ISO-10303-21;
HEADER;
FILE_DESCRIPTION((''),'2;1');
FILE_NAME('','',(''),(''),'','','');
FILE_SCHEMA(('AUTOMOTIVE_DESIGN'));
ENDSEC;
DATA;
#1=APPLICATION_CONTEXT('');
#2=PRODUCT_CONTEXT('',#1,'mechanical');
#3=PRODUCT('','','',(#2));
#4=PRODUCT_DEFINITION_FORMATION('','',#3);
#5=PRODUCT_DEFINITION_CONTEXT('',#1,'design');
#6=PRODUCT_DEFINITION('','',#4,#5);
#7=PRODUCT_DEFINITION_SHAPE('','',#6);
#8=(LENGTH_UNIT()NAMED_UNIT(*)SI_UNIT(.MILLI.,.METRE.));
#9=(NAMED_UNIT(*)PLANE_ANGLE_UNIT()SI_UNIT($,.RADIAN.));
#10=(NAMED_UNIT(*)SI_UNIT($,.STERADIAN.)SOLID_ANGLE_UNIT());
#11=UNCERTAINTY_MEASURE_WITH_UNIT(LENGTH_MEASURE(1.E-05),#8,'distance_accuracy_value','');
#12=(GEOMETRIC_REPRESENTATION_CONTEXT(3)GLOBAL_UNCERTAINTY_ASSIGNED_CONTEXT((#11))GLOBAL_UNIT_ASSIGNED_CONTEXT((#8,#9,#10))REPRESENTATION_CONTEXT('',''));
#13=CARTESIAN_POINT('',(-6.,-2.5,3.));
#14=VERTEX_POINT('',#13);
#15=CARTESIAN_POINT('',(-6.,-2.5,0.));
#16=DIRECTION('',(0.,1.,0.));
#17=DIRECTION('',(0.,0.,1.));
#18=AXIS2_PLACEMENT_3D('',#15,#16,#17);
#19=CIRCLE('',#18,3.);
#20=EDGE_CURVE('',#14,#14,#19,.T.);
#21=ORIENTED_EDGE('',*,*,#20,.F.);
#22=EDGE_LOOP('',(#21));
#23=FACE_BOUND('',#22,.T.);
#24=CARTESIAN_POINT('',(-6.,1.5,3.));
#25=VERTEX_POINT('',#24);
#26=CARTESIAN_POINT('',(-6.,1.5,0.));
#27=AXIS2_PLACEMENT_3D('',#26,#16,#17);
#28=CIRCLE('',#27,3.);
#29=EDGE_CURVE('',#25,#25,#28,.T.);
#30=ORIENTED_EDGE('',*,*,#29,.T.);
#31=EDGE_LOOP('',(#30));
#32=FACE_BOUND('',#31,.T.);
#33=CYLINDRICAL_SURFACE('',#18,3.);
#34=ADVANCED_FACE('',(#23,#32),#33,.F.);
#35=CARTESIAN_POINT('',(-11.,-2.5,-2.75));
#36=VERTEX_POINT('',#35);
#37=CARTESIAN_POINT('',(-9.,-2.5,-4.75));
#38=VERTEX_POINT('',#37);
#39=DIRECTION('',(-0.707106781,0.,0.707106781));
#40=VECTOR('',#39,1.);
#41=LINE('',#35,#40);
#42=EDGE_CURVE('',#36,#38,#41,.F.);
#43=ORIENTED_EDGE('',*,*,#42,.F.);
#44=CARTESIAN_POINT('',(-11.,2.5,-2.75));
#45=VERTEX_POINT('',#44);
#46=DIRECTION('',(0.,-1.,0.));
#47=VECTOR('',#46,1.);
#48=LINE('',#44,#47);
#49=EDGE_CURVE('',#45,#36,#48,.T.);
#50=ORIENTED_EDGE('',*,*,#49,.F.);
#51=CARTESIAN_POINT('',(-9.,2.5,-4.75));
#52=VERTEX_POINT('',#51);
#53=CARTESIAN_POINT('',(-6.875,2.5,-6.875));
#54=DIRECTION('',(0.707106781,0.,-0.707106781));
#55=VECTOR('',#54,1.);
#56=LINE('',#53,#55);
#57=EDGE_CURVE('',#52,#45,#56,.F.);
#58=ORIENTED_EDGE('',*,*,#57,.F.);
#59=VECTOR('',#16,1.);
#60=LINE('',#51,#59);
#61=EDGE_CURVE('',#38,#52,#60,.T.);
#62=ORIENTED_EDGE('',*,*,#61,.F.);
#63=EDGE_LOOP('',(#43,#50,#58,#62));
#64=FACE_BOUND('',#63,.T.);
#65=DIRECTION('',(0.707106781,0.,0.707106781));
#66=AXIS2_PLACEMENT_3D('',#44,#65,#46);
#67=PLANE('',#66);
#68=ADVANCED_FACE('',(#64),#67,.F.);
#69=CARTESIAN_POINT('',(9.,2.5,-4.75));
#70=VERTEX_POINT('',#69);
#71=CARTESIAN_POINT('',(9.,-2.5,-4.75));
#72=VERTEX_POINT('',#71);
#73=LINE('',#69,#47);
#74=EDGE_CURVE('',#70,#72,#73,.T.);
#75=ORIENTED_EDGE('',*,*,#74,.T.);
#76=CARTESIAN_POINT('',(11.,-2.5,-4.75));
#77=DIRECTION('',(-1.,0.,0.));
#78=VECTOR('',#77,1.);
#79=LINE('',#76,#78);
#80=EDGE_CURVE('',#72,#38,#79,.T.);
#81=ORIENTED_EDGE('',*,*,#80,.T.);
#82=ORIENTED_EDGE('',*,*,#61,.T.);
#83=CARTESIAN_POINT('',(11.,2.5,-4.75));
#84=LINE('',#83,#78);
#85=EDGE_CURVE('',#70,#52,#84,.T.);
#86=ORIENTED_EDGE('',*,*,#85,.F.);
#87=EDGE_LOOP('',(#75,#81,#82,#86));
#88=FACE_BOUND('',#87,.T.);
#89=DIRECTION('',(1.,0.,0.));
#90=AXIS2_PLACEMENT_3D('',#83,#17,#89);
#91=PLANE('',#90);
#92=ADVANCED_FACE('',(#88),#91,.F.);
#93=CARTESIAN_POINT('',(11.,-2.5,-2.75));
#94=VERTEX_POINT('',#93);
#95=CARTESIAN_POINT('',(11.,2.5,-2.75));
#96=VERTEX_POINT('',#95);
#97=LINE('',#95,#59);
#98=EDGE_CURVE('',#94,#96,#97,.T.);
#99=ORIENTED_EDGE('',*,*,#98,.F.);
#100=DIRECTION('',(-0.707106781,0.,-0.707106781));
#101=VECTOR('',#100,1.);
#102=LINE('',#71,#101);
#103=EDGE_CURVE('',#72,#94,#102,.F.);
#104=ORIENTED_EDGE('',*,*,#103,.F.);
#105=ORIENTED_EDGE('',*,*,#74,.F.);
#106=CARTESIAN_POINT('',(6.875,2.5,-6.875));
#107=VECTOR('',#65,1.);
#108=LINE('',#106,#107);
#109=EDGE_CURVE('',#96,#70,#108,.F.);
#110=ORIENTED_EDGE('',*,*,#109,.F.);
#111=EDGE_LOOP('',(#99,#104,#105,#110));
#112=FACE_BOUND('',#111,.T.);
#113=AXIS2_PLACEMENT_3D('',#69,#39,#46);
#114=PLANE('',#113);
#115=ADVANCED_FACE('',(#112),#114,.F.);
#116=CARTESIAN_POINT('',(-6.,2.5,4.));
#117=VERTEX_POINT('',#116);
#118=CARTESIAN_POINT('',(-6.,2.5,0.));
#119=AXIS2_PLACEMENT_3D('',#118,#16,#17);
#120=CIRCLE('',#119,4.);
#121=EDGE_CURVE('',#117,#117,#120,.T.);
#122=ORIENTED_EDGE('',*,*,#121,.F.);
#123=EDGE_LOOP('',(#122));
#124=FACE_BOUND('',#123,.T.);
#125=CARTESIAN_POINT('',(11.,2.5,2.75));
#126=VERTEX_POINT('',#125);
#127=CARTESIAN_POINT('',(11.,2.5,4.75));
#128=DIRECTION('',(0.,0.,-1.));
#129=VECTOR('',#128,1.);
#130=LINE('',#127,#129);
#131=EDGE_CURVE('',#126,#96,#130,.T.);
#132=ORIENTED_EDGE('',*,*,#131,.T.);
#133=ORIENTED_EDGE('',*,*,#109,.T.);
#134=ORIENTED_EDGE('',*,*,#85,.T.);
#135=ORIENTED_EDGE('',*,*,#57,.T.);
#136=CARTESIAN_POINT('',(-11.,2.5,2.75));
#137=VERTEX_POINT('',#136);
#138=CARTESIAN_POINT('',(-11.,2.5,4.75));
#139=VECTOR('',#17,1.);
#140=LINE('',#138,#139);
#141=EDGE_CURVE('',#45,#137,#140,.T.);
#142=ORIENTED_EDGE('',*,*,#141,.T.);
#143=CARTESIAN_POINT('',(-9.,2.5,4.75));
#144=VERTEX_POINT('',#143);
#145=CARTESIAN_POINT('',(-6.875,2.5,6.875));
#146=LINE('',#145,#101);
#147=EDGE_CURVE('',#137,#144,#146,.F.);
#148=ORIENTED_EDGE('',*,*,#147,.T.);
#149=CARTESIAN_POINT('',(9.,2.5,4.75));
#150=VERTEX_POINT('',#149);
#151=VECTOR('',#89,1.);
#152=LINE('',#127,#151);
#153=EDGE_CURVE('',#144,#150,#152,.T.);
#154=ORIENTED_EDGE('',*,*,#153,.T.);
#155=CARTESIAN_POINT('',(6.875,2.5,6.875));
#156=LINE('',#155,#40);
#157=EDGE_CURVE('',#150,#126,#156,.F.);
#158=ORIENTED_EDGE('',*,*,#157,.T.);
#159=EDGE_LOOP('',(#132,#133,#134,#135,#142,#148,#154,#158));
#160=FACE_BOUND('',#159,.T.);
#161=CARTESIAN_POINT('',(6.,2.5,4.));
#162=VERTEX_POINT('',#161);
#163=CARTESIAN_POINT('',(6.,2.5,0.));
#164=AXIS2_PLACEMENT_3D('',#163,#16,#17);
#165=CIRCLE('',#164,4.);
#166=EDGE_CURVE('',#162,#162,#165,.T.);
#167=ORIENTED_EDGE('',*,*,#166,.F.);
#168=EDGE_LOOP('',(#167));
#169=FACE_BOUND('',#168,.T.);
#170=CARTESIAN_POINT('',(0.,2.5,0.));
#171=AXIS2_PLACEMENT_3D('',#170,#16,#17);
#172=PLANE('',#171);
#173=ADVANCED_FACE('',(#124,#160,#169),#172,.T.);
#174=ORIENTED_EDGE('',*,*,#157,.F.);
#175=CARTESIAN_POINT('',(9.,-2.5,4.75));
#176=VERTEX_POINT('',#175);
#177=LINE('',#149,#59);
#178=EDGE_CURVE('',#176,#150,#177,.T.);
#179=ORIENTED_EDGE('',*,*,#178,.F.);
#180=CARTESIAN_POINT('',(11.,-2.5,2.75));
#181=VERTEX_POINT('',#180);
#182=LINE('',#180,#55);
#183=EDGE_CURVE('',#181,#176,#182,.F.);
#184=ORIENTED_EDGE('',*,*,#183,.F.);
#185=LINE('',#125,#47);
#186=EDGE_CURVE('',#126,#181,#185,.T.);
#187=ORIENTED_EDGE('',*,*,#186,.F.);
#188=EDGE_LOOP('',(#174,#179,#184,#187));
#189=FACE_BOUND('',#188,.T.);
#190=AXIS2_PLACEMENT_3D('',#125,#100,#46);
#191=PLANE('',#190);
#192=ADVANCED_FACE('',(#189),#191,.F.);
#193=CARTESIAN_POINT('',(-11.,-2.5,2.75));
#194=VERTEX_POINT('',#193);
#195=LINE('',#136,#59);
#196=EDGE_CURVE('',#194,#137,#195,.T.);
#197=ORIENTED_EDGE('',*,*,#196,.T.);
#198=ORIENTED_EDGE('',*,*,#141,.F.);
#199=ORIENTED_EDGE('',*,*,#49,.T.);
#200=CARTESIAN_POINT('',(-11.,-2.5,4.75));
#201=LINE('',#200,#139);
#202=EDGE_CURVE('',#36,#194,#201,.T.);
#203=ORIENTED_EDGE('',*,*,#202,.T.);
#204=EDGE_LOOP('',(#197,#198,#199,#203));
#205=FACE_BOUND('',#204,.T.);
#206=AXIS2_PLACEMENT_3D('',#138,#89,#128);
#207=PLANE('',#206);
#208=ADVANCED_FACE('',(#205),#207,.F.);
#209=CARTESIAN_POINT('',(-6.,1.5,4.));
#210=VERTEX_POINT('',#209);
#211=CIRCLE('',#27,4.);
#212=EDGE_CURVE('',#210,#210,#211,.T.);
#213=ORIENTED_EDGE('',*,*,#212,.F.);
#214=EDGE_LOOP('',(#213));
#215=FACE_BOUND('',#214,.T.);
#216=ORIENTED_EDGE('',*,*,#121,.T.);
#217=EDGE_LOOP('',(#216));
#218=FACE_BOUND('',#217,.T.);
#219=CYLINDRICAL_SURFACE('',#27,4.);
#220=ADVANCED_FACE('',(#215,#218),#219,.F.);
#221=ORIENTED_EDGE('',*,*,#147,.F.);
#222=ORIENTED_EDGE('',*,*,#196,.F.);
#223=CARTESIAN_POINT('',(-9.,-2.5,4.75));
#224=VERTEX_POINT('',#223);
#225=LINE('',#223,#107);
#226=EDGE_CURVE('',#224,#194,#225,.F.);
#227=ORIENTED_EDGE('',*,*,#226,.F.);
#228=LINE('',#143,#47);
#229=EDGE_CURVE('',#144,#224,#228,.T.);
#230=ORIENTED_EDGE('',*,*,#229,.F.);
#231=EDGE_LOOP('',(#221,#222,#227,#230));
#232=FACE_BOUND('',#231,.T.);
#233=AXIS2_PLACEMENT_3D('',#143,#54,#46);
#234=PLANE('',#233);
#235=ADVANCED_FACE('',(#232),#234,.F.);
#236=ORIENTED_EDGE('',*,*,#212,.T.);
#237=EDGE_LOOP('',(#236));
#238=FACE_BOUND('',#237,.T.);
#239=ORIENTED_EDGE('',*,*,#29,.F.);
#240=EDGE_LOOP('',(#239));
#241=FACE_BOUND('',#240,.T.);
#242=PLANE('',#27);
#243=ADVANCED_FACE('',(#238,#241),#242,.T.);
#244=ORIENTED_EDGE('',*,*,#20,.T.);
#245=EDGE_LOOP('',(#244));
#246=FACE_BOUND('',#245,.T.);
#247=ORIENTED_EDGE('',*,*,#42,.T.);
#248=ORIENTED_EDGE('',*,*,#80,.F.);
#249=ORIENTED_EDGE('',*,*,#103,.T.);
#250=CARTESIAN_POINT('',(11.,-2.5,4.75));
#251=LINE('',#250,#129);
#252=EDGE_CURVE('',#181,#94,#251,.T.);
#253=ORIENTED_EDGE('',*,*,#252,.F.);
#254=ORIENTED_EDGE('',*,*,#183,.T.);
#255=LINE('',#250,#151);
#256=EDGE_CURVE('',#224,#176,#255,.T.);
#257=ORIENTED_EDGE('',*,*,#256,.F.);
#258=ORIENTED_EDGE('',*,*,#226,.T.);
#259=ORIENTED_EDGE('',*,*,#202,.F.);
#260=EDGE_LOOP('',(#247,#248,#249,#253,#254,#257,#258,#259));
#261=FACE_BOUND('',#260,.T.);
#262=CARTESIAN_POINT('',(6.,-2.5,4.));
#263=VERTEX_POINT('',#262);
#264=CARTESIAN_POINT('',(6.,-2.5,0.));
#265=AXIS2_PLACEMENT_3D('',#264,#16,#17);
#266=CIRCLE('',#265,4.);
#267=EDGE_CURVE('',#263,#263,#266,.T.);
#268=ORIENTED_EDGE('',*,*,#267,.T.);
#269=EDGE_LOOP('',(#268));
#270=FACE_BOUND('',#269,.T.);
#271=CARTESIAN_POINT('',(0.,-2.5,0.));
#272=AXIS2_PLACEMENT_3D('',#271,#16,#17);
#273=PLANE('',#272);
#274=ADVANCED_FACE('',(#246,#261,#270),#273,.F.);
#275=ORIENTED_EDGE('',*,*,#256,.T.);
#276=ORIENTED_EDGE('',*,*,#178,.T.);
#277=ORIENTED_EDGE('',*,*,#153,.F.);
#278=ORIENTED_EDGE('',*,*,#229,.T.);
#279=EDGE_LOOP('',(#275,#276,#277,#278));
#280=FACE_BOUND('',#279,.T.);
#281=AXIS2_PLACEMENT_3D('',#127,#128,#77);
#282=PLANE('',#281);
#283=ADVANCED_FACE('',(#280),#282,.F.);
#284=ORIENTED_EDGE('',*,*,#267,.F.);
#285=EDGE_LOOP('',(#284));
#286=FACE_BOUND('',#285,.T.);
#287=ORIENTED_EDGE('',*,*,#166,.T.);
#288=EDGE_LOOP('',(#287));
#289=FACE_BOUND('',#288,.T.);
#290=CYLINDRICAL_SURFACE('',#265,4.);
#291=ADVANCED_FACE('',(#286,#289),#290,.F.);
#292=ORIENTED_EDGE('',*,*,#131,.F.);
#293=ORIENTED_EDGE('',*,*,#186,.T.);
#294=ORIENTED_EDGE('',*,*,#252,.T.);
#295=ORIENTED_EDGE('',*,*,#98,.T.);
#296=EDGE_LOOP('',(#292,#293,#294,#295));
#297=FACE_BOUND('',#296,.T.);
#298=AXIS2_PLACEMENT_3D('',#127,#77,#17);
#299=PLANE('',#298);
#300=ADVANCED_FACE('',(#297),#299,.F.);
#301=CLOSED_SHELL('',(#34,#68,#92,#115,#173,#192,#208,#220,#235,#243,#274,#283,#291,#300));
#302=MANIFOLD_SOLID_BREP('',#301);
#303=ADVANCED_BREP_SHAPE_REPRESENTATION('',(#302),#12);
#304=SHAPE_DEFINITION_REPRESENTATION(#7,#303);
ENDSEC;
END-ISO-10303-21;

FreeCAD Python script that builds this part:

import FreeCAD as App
import Part
import Sketcher
from FreeCAD import Vector
Q = App.Units.Quantity


def edges_at(feature, points):
    """Names of the edges that pass closest to the given points."""
    edges = feature.Shape.Edges
    near = lambda p: min(range(len(edges)), key=lambda i: edges[i].distToShape(Part.Vertex(*p))[0])
    return sorted({f"Edge{near(p) + 1}" for p in points})


def add_polygon(sketch, points):
    """Adds a closed chain of lines whose ends are joined by coincident constraints."""
    first, n = sketch.GeometryCount, len(points)
    for a, b in zip(points, points[1:] + points[:1]):
        sketch.addGeometry(Part.LineSegment(App.Vector(*a, 0), App.Vector(*b, 0)), False)
    for i in range(n):
        sketch.addConstraint(Sketcher.Constraint("Coincident", first + i, 2, first + (i + 1) % n, 1))

doc = App.newDocument("Part")
params = doc.addObject("Spreadsheet::Sheet", "Params")
for row, (alias, value) in enumerate([
    ("sketch1_width", "22 mm"),
    ("sketch1_height", "9.5 mm"),
    ("pad1_length", "5 mm"),
    ("sketch2_diameter", "8 mm"),
    ("sketch3_diameter", "8 mm"),
    ("pocket2_length", "1 mm"),
    ("sketch4_diameter", "6 mm"),
    ("chamfer_size", "2 mm"),
], start=1):
    params.set(f"A{row}", alias)
    params.set(f"B{row}", "=" + value)
    params.setAlias(f"B{row}", alias)

body = doc.addObject("PartDesign::Body", "Body")

# Sketch on XZ plane
sketch1 = body.newObject("Sketcher::SketchObject", "Sketch")
sketch1.AttachmentSupport = (doc.getObject("XZ_Plane"), [""])
sketch1.MapMode = "FlatFace"
add_polygon(sketch1, [(-11, -5), (-11, 5), (11, 5), (11, -5)])  # lines 0-3
sketch1.addConstraint(Sketcher.Constraint("Vertical", 0))
sketch1.addConstraint(Sketcher.Constraint("Horizontal", 1))
sketch1.addConstraint(Sketcher.Constraint("Vertical", 2))
sketch1.addConstraint(Sketcher.Constraint("Horizontal", 3))
sketch1.addConstraint(Sketcher.Constraint("Symmetric", 0, 2, 2, 2, -1, 1))
sketch1.addConstraint(Sketcher.Constraint("DistanceX", 1, 1, 1, 2, Q("22 mm")))
sketch1.addConstraint(Sketcher.Constraint("DistanceY", 0, 1, 0, 2, Q("9.5 mm")))
sketch1.setExpression("Constraints[9]", "Params.sketch1_width")
sketch1.setExpression("Constraints[10]", "Params.sketch1_height")
pad1 = body.newObject("PartDesign::Pad", "Pad")
pad1.Profile = sketch1
pad1.setExpression("Length", "Params.pad1_length")
pad1.Midplane = True

# Sketch on XZ plane
sketch2 = body.newObject("Sketcher::SketchObject", "Sketch001")
sketch2.AttachmentSupport = (doc.getObject("XZ_Plane"), [""])
sketch2.MapMode = "FlatFace"
sketch2.AttachmentOffset = App.Placement(Vector(0, 0, -2.5), App.Rotation())
sketch2.addGeometry(Part.Circle(Vector(6, 0, 0), Vector(0, 0, 1), 4), False)
sketch2.addConstraint(Sketcher.Constraint("PointOnObject", 0, 3, -1))
sketch2.addConstraint(Sketcher.Constraint("Diameter", 0, Q("8 mm")))
sketch2.addConstraint(Sketcher.Constraint("DistanceX", -1, 1, 0, 3, Q("6 mm")))
sketch2.setExpression("Constraints[1]", "Params.sketch2_diameter")
pocket1 = body.newObject("PartDesign::Pocket", "Pocket")
pocket1.Profile = sketch2
pocket1.Type = "ThroughAll"
pocket1.Reversed = True

# Sketch on XZ plane
sketch3 = body.newObject("Sketcher::SketchObject", "Sketch002")
sketch3.AttachmentSupport = (doc.getObject("XZ_Plane"), [""])
sketch3.MapMode = "FlatFace"
sketch3.AttachmentOffset = App.Placement(Vector(0, 0, -2.5), App.Rotation())
sketch3.addGeometry(Part.Circle(Vector(-6, 0, 0), Vector(0, 0, 1), 4), False)
sketch3.addConstraint(Sketcher.Constraint("PointOnObject", 0, 3, -1))
sketch3.addConstraint(Sketcher.Constraint("Diameter", 0, Q("8 mm")))
sketch3.addConstraint(Sketcher.Constraint("DistanceX", 0, 3, -1, 1, Q("6 mm")))
sketch3.setExpression("Constraints[1]", "Params.sketch3_diameter")
pocket2 = body.newObject("PartDesign::Pocket", "Pocket001")
pocket2.Profile = sketch3
pocket2.setExpression("Length", "Params.pocket2_length")
pocket2.Reversed = True

# Sketch on XZ plane
sketch4 = body.newObject("Sketcher::SketchObject", "Sketch003")
sketch4.AttachmentSupport = (doc.getObject("XZ_Plane"), [""])
sketch4.MapMode = "FlatFace"
sketch4.AttachmentOffset = App.Placement(Vector(0, 0, -1.5), App.Rotation())
sketch4.addGeometry(Part.Circle(Vector(-6, 0, 0), Vector(0, 0, 1), 3), False)
sketch4.addConstraint(Sketcher.Constraint("PointOnObject", 0, 3, -1))
sketch4.addConstraint(Sketcher.Constraint("Diameter", 0, Q("6 mm")))
sketch4.addConstraint(Sketcher.Constraint("DistanceX", 0, 3, -1, 1, Q("6 mm")))
sketch4.setExpression("Constraints[1]", "Params.sketch4_diameter")
pocket3 = body.newObject("PartDesign::Pocket", "Pocket002")
pocket3.Profile = sketch4
pocket3.Type = "ThroughAll"
pocket3.Reversed = True
doc.recompute()

chamfer = body.newObject("PartDesign::Chamfer", "Chamfer")
chamfer.Base = (pocket3, edges_at(pocket3, [
    (-11, 0, -4.75),
    (11, 0, -4.75),
    (11, 0, 4.75),
    (-11, 0, 4.75),
]))
chamfer.setExpression("Size", "Params.chamfer_size")

doc.recompute()
